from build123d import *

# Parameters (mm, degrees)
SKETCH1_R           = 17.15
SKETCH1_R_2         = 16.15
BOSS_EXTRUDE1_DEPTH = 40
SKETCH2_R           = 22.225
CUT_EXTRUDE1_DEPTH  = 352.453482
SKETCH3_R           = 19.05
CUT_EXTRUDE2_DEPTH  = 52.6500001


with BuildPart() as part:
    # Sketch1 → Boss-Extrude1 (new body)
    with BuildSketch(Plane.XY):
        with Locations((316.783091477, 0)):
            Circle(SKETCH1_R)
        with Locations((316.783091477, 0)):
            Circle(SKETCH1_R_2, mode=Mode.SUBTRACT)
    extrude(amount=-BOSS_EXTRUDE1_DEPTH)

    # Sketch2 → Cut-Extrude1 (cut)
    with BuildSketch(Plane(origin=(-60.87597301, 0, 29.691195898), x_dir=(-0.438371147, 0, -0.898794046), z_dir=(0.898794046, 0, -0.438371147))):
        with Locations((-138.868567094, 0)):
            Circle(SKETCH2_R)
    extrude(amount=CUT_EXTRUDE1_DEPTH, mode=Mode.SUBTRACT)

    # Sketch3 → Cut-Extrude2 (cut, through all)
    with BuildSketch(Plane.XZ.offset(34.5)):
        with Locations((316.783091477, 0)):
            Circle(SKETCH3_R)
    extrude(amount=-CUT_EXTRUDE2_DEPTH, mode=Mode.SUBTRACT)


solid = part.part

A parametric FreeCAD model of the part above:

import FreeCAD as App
import Part
import Sketcher
from FreeCAD import Vector

doc = App.newDocument("Part")
params = doc.addObject("Spreadsheet::Sheet", "Params")
for row, (alias, value) in enumerate([
    ("sketch1_diameter", "34.3 mm"),
    ("sketch1_diameter2", "32.3 mm"),
    ("pad1_length", "40 mm"),
    ("sketch2_diameter", "44.45 mm"),
    ("pocket1_length", "352.453482 mm"),
    ("sketch3_diameter", "38.1 mm"),
], start=1):
    params.set(f"A{row}", alias)
    params.set(f"B{row}", "=" + value)
    params.setAlias(f"B{row}", alias)

body = doc.addObject("PartDesign::Body", "Body")

# Sketch on XY plane
sketch1 = body.newObject("Sketcher::SketchObject", "Sketch")
sketch1.AttachmentSupport = (doc.getObject("XY_Plane"), [""])
sketch1.MapMode = "FlatFace"
sketch1.addGeometry(Part.Circle(Vector(317, 0, 0), Vector(0, 0, 1), 17), False)
sketch1.addGeometry(Part.Circle(Vector(317, 0, 0), Vector(0, 0, 1), 16), False)
sketch1.addConstraint(Sketcher.Constraint("Coincident", 1, 3, 0, 3))
sketch1.addConstraint(Sketcher.Constraint("PointOnObject", 0, 3, -1))
sketch1.addConstraint(Sketcher.Constraint("Diameter", 0, 34.3))
sketch1.addConstraint(Sketcher.Constraint("Diameter", 1, 32.3))
sketch1.addConstraint(Sketcher.Constraint("DistanceX", -1, 1, 0, 3, 316.783091))
sketch1.setExpression("Constraints[2]", "Params.sketch1_diameter")
sketch1.setExpression("Constraints[3]", "Params.sketch1_diameter2")
pad1 = body.newObject("PartDesign::Pad", "Pad")
pad1.Profile = sketch1
pad1.setExpression("Length", "Params.pad1_length")
pad1.Reversed = True

# Sketch on an angled plane
sketch2 = body.newObject("Sketcher::SketchObject", "Sketch001")
sketch2.Placement = App.Placement(Vector(-60.875973, 0, 29.691196), App.Rotation(Vector(-0.438371147, 0, -0.898794046), Vector(0, 1, 0), Vector(0.898794046, 0, -0.438371147), "ZXY"))
sketch2.addGeometry(Part.Circle(Vector(-139, 0, 0), Vector(0, 0, 1), 22), False)
sketch2.addConstraint(Sketcher.Constraint("PointOnObject", 0, 3, -1))
sketch2.addConstraint(Sketcher.Constraint("Diameter", 0, 44.45))
sketch2.addConstraint(Sketcher.Constraint("DistanceX", 0, 3, -1, 1, 138.868567))
sketch2.setExpression("Constraints[1]", "Params.sketch2_diameter")
pocket1 = body.newObject("PartDesign::Pocket", "Pocket")
pocket1.Profile = sketch2
pocket1.setExpression("Length", "Params.pocket1_length")
pocket1.Reversed = True

# Sketch on XZ plane
sketch3 = body.newObject("Sketcher::SketchObject", "Sketch002")
sketch3.AttachmentSupport = (doc.getObject("XZ_Plane"), [""])
sketch3.MapMode = "FlatFace"
sketch3.AttachmentOffset = App.Placement(Vector(0, 0, 34.5), App.Rotation())
sketch3.addGeometry(Part.Circle(Vector(317, 0, 0), Vector(0, 0, 1), 19), False)
sketch3.addConstraint(Sketcher.Constraint("PointOnObject", 0, 3, -1))
sketch3.addConstraint(Sketcher.Constraint("Diameter", 0, 38.1))
sketch3.addConstraint(Sketcher.Constraint("DistanceX", -1, 1, 0, 3, 316.783091))
sketch3.setExpression("Constraints[1]", "Params.sketch3_diameter")
pocket2 = body.newObject("PartDesign::Pocket", "Pocket001")
pocket2.Profile = sketch3
pocket2.Type = "ThroughAll"

doc.recompute()
